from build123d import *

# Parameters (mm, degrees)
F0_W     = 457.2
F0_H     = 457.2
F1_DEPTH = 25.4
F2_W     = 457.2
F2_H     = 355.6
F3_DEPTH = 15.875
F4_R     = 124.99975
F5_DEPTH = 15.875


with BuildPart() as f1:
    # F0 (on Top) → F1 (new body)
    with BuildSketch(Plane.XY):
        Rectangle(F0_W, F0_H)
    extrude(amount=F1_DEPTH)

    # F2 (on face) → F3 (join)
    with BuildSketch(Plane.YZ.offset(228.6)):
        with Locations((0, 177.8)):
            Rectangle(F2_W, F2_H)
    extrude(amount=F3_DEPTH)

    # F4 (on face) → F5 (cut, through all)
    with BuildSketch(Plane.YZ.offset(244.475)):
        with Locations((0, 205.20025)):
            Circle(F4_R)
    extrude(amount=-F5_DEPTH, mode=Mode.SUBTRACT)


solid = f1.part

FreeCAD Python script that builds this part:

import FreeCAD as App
import Part
import Sketcher
from FreeCAD import Vector
Q = App.Units.Quantity

doc = App.newDocument("Part")
body = doc.addObject("PartDesign::Body", "Body")

sketch1 = doc.addObject("Sketcher::SketchObject", "Sketch")
body.addObject(sketch1)
sketch1.AttachmentSupport = (doc.XY_Plane, [""])
sketch1.MapMode = "FlatFace"
sketch1.addGeometry([
    Part.LineSegment(Vector(-229, 229, 0), Vector(-229, -229, 0)),
    Part.LineSegment(Vector(-229, -229, 0), Vector(229, -229, 0)),
    Part.LineSegment(Vector(229, -229, 0), Vector(229, 229, 0)),
    Part.LineSegment(Vector(229, 229, 0), Vector(-229, 229, 0)),
], False)
sketch1.addConstraint([
    Sketcher.Constraint("Coincident", 0, 2, 1, 1),
    Sketcher.Constraint("Coincident", 1, 2, 2, 1),
    Sketcher.Constraint("Coincident", 2, 2, 3, 1),
    Sketcher.Constraint("Coincident", 3, 2, 0, 1),
    Sketcher.Constraint("Vertical", 0),
    Sketcher.Constraint("Horizontal", 1),
    Sketcher.Constraint("Vertical", 2),
    Sketcher.Constraint("Horizontal", 3),
    Sketcher.Constraint("Symmetric", 0, 2, 2, 2, -1, 1),
    Sketcher.Constraint("Equal", 3, 0),
    Sketcher.Constraint("DistanceX", 1, 1, 1, 2, Q("18 in")),
])
pad1 = doc.addObject("PartDesign::Pad", "Pad")
body.addObject(pad1)
pad1.Profile = sketch1
pad1.Length = Q("1 in")

sketch2 = doc.addObject("Sketcher::SketchObject", "Sketch001")
body.addObject(sketch2)
sketch2.AttachmentSupport = (doc.YZ_Plane, [""])
sketch2.MapMode = "FlatFace"
sketch2.AttachmentOffset = App.Placement(Vector(0, 0, 9 * 25.4), App.Rotation())
sketch2.addGeometry([
    Part.LineSegment(Vector(-229, 356, 0), Vector(-229, 0, 0)),
    Part.LineSegment(Vector(-229, 0, 0), Vector(229, 0, 0)),
    Part.LineSegment(Vector(229, 0, 0), Vector(229, 356, 0)),
    Part.LineSegment(Vector(229, 356, 0), Vector(-229, 356, 0)),
], False)
sketch2.addConstraint([
    Sketcher.Constraint("Coincident", 0, 2, 1, 1),
    Sketcher.Constraint("Coincident", 1, 2, 2, 1),
    Sketcher.Constraint("Coincident", 2, 2, 3, 1),
    Sketcher.Constraint("Coincident", 3, 2, 0, 1),
    Sketcher.Constraint("Vertical", 0),
    Sketcher.Constraint("Horizontal", 1),
    Sketcher.Constraint("Vertical", 2),
    Sketcher.Constraint("Horizontal", 3),
    Sketcher.Constraint("Symmetric", 0, 2, 1, 2, -1, 1),
    Sketcher.Constraint("DistanceX", 1, 1, 1, 2, Q("18 in")),
    Sketcher.Constraint("DistanceY", 0, 2, 0, 1, Q("14 in")),
])
pad2 = doc.addObject("PartDesign::Pad", "Pad001")
body.addObject(pad2)
pad2.Profile = sketch2
pad2.Length = Q("0.625 in")

sketch3 = doc.addObject("Sketcher::SketchObject", "Sketch002")
body.addObject(sketch3)
sketch3.AttachmentSupport = (doc.YZ_Plane, [""])
sketch3.MapMode = "FlatFace"
sketch3.AttachmentOffset = App.Placement(Vector(0, 0, 9.625 * 25.4), App.Rotation())
sketch3.addGeometry(Part.Circle(Vector(0, 205, 0), Vector(0, 0, 1), 125), False)
sketch3.addConstraint([
    Sketcher.Constraint("PointOnObject", 0, 3, -2),
    Sketcher.Constraint("Diameter", 0, Q("9.8425 in")),
    Sketcher.Constraint("DistanceY", -1, 1, 0, 3, Q("205.20025 mm")),
])
pocket1 = doc.addObject("PartDesign::Pocket", "Pocket")
body.addObject(pocket1)
pocket1.Profile = sketch3
pocket1.Type = "ThroughAll"

doc.recompute()
